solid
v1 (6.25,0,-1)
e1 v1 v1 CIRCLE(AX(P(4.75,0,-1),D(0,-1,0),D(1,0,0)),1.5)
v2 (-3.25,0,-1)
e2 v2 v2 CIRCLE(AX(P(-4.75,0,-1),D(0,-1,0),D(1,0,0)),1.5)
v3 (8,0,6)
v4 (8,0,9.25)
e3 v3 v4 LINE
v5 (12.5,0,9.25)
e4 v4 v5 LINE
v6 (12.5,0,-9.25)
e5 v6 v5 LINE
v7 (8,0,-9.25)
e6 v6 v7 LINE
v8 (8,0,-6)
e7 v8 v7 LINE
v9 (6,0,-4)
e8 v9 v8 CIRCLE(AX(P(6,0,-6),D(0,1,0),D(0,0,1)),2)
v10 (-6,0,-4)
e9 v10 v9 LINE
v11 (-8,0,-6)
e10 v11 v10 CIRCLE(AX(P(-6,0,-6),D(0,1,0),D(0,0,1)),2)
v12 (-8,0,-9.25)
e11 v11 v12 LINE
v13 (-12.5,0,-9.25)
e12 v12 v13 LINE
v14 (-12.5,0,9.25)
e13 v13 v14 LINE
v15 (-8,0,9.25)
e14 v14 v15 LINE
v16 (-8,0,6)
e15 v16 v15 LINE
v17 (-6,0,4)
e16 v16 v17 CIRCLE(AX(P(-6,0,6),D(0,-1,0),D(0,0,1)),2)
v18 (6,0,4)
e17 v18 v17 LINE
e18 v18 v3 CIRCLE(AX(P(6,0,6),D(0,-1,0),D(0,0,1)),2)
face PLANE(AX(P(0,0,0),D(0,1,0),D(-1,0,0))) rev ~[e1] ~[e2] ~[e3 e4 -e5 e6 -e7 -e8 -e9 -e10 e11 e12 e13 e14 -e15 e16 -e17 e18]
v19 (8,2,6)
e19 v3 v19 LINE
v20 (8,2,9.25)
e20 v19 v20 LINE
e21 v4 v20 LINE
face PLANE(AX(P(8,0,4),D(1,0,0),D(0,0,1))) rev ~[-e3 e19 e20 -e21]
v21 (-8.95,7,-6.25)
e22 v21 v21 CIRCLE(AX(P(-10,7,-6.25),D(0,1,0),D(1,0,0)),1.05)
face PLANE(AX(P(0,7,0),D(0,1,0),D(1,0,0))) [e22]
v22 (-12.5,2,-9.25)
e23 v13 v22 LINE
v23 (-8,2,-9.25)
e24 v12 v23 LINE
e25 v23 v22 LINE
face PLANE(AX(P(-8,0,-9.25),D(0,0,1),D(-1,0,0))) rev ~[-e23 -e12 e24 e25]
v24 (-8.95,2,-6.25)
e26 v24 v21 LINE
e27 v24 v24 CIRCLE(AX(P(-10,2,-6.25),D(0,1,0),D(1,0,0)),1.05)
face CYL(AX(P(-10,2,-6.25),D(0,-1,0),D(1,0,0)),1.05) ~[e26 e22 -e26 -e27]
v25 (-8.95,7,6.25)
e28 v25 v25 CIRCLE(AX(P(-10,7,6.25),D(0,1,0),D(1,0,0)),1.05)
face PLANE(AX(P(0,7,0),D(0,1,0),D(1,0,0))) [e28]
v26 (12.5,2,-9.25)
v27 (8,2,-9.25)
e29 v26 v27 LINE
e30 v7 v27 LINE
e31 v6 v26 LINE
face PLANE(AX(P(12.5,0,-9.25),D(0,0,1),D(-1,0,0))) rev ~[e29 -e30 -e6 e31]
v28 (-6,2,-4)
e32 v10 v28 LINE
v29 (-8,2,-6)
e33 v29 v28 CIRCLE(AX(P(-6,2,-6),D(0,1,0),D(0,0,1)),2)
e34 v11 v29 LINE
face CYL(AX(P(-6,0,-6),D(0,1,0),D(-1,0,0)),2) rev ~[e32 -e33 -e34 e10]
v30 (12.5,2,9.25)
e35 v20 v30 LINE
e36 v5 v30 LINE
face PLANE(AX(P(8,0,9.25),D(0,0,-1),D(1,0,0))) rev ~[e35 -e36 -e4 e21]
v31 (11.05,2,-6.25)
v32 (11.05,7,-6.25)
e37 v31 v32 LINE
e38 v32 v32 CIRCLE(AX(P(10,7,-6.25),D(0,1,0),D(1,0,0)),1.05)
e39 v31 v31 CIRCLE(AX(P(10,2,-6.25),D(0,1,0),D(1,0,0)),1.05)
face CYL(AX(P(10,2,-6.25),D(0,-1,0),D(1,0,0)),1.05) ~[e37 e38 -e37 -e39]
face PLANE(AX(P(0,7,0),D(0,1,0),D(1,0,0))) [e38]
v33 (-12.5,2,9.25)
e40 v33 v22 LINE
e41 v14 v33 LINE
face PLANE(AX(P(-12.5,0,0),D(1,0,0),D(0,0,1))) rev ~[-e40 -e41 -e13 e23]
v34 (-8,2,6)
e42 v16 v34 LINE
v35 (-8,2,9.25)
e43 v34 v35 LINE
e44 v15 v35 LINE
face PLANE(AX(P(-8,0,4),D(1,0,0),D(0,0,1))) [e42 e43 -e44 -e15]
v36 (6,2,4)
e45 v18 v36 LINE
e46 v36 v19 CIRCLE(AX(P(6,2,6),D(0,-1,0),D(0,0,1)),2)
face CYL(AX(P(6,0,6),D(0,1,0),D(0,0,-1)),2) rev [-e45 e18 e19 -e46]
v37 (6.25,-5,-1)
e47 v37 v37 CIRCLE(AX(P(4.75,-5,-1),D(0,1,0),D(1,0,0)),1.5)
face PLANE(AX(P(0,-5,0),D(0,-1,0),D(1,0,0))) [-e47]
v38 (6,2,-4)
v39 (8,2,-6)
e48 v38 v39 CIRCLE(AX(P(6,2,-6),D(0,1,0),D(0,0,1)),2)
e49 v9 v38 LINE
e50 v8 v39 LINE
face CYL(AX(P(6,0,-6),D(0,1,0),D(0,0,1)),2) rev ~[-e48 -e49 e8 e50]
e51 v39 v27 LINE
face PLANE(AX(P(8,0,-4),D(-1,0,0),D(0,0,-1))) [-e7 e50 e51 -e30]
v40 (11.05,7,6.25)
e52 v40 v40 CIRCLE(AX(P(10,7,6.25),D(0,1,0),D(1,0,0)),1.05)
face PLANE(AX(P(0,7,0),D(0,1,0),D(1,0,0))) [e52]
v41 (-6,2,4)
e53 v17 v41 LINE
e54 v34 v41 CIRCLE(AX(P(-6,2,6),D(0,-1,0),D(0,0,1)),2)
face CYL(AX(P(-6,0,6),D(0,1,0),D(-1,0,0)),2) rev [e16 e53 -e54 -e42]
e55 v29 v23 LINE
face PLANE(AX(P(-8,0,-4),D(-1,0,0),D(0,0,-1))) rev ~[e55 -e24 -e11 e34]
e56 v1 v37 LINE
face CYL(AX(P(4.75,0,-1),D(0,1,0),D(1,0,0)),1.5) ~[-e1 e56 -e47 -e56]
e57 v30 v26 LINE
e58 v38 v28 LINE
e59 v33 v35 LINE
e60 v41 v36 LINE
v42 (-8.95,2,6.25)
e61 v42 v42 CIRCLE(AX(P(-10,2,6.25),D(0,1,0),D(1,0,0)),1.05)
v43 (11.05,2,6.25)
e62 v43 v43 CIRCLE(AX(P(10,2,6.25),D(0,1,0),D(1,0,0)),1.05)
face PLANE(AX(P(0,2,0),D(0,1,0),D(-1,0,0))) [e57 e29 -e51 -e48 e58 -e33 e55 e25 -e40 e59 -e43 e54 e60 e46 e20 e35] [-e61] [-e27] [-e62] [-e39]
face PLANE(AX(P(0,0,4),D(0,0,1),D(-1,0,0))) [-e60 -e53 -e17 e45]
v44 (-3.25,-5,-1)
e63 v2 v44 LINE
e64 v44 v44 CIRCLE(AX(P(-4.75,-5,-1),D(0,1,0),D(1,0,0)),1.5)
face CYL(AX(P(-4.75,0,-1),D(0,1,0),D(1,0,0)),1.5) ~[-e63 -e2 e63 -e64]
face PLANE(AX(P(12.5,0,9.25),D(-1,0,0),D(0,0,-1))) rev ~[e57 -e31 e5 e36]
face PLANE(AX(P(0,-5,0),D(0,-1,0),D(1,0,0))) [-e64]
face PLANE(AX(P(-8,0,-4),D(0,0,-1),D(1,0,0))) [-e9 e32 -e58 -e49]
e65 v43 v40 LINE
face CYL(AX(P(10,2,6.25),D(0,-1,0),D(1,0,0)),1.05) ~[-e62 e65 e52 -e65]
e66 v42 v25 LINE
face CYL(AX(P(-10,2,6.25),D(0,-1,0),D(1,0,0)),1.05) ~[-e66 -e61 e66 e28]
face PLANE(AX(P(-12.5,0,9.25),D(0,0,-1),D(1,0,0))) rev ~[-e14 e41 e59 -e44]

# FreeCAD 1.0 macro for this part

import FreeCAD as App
import Part
import Sketcher


def edges_at(feature, points):
    """Names of the edges that pass closest to the given points."""
    edges = feature.Shape.Edges
    near = lambda p: min(range(len(edges)), key=lambda i: edges[i].distToShape(Part.Vertex(*p))[0])
    return sorted({f"Edge{near(p) + 1}" for p in points})

doc = App.newDocument("Part")
body = doc.addObject("PartDesign::Body", "Body")

sketch1 = body.newObject("Sketcher::SketchObject", "Sketch")
sketch1.AttachmentSupport = (doc.getObject("XZ_Plane"), [""])
sketch1.MapMode = "FlatFace"
sketch1.addGeometry([
    Part.LineSegment(App.Vector(-12.5, 9.25, 0), App.Vector(-8, 9.25, 0)),
    Part.LineSegment(App.Vector(-8, 9.25, 0), App.Vector(-8, 4, 0)),
    Part.LineSegment(App.Vector(-8, 4, 0), App.Vector(8, 4, 0)),
    Part.LineSegment(App.Vector(8, 4, 0), App.Vector(8, 9.25, 0)),
    Part.LineSegment(App.Vector(8, 9.25, 0), App.Vector(12.5, 9.25, 0)),
    Part.LineSegment(App.Vector(12.5, 9.25, 0), App.Vector(12.5, -9.25, 0)),
    Part.LineSegment(App.Vector(12.5, -9.25, 0), App.Vector(8, -9.25, 0)),
    Part.LineSegment(App.Vector(8, -9.25, 0), App.Vector(8, -4, 0)),
    Part.LineSegment(App.Vector(8, -4, 0), App.Vector(-8, -4, 0)),
    Part.LineSegment(App.Vector(-8, -4, 0), App.Vector(-8, -9.25, 0)),
    Part.LineSegment(App.Vector(-8, -9.25, 0), App.Vector(-12.5, -9.25, 0)),
    Part.LineSegment(App.Vector(-12.5, -9.25, 0), App.Vector(-12.5, 9.25, 0)),
], False)
sketch1.addConstraint([
    Sketcher.Constraint("Coincident", 0, 2, 1, 1),
    Sketcher.Constraint("Coincident", 1, 2, 2, 1),
    Sketcher.Constraint("Coincident", 2, 2, 3, 1),
    Sketcher.Constraint("Coincident", 3, 2, 4, 1),
    Sketcher.Constraint("Coincident", 4, 2, 5, 1),
    Sketcher.Constraint("Coincident", 5, 2, 6, 1),
    Sketcher.Constraint("Coincident", 6, 2, 7, 1),
    Sketcher.Constraint("Coincident", 7, 2, 8, 1),
    Sketcher.Constraint("Coincident", 8, 2, 9, 1),
    Sketcher.Constraint("Coincident", 9, 2, 10, 1),
    Sketcher.Constraint("Coincident", 10, 2, 11, 1),
    Sketcher.Constraint("Coincident", 11, 2, 0, 1),
    Sketcher.Constraint("Horizontal", 0),
    Sketcher.Constraint("Vertical", 1),
    Sketcher.Constraint("Horizontal", 2),
    Sketcher.Constraint("Vertical", 3),
    Sketcher.Constraint("Horizontal", 4),
    Sketcher.Constraint("Vertical", 5),
    Sketcher.Constraint("Horizontal", 6),
    Sketcher.Constraint("Vertical", 7),
    Sketcher.Constraint("Horizontal", 8),
    Sketcher.Constraint("Vertical", 9),
    Sketcher.Constraint("Horizontal", 10),
    Sketcher.Constraint("Vertical", 11),
    Sketcher.Constraint("Symmetric", 0, 2, 6, 2, -1, 1),
    Sketcher.Constraint("Symmetric", 2, 2, 8, 2, -1, 1),
    Sketcher.Constraint("Symmetric", 4, 2, 10, 2, -1, 1),
    Sketcher.Constraint("Symmetric", 0, 2, 3, 2, -2),
    Sketcher.Constraint("DistanceX", 2, 1, 2, 2, 16.0),
    Sketcher.Constraint("DistanceY", 5, 2, 5, 1, 18.5),
    Sketcher.Constraint("DistanceY", 7, 2, 2, 2, 8.0),
    Sketcher.Constraint("DistanceX", 0, 1, 0, 2, 4.5),
])
pad1 = body.newObject("PartDesign::Pad", "Pad")
pad1.Profile = sketch1
pad1.Length = 2
pad1.Reversed = True

sketch2 = body.newObject("Sketcher::SketchObject", "Sketch001")
sketch2.AttachmentSupport = (doc.getObject("XZ_Plane"), [""])
sketch2.MapMode = "FlatFace"
sketch2.AttachmentOffset = App.Placement(App.Vector(0, 0, -2), App.Rotation())
sketch2.addGeometry([
    Part.Circle(App.Vector(10, 6.25, 0), App.Vector(0, 0, 1), 1.05),
    Part.Circle(App.Vector(10, -6.25, 0), App.Vector(0, 0, 1), 1.05),
    Part.Circle(App.Vector(-10, -6.25, 0), App.Vector(0, 0, 1), 1.05),
    Part.Circle(App.Vector(-10, 6.25, 0), App.Vector(0, 0, 1), 1.05),
], False)
sketch2.addConstraint([
    Sketcher.Constraint("Equal", 0, 1),
    Sketcher.Constraint("Equal", 1, 2),
    Sketcher.Constraint("Equal", 2, 3),
    Sketcher.Constraint("Symmetric", 0, 3, 2, 3, -1, 1),
    Sketcher.Constraint("Symmetric", 1, 3, 3, 3, -1, 1),
    Sketcher.Constraint("Symmetric", 1, 3, 2, 3, -2),
    Sketcher.Constraint("Diameter", 0, 2.1),
    Sketcher.Constraint("DistanceX", 2, 3, 1, 3, 20.0),
    Sketcher.Constraint("DistanceY", 1, 3, 0, 3, 12.5),
])
pad2 = body.newObject("PartDesign::Pad", "Pad001")
pad2.Profile = sketch2
pad2.Length = 5
pad2.Reversed = True

sketch3 = body.newObject("Sketcher::SketchObject", "Sketch002")
sketch3.AttachmentSupport = (doc.getObject("XZ_Plane"), [""])
sketch3.MapMode = "FlatFace"
sketch3.addGeometry([
    Part.Circle(App.Vector(-4.75, -1, 0), App.Vector(0, 0, 1), 1.5),
    Part.Circle(App.Vector(4.75, -1, 0), App.Vector(0, 0, 1), 1.5),
], False)
sketch3.addConstraint([
    Sketcher.Constraint("Equal", 0, 1),
    Sketcher.Constraint("Symmetric", 0, 3, 1, 3, -2),
    Sketcher.Constraint("Diameter", 0, 3.0),
    Sketcher.Constraint("DistanceY", 0, 3, -1, 1, 1.0),
    Sketcher.Constraint("DistanceX", 0, 3, 1, 3, 9.5),
])
pad3 = body.newObject("PartDesign::Pad", "Pad002")
pad3.Profile = sketch3
pad3.Length = 5
doc.recompute()

fillet = body.newObject("PartDesign::Fillet", "Fillet")
fillet.Base = (pad3, edges_at(pad3, [
    (-8, 1, 4),
    (8, 1, 4),
    (8, 1, -4),
    (-8, 1, -4),
]))
fillet.Radius = 2

doc.recompute()
